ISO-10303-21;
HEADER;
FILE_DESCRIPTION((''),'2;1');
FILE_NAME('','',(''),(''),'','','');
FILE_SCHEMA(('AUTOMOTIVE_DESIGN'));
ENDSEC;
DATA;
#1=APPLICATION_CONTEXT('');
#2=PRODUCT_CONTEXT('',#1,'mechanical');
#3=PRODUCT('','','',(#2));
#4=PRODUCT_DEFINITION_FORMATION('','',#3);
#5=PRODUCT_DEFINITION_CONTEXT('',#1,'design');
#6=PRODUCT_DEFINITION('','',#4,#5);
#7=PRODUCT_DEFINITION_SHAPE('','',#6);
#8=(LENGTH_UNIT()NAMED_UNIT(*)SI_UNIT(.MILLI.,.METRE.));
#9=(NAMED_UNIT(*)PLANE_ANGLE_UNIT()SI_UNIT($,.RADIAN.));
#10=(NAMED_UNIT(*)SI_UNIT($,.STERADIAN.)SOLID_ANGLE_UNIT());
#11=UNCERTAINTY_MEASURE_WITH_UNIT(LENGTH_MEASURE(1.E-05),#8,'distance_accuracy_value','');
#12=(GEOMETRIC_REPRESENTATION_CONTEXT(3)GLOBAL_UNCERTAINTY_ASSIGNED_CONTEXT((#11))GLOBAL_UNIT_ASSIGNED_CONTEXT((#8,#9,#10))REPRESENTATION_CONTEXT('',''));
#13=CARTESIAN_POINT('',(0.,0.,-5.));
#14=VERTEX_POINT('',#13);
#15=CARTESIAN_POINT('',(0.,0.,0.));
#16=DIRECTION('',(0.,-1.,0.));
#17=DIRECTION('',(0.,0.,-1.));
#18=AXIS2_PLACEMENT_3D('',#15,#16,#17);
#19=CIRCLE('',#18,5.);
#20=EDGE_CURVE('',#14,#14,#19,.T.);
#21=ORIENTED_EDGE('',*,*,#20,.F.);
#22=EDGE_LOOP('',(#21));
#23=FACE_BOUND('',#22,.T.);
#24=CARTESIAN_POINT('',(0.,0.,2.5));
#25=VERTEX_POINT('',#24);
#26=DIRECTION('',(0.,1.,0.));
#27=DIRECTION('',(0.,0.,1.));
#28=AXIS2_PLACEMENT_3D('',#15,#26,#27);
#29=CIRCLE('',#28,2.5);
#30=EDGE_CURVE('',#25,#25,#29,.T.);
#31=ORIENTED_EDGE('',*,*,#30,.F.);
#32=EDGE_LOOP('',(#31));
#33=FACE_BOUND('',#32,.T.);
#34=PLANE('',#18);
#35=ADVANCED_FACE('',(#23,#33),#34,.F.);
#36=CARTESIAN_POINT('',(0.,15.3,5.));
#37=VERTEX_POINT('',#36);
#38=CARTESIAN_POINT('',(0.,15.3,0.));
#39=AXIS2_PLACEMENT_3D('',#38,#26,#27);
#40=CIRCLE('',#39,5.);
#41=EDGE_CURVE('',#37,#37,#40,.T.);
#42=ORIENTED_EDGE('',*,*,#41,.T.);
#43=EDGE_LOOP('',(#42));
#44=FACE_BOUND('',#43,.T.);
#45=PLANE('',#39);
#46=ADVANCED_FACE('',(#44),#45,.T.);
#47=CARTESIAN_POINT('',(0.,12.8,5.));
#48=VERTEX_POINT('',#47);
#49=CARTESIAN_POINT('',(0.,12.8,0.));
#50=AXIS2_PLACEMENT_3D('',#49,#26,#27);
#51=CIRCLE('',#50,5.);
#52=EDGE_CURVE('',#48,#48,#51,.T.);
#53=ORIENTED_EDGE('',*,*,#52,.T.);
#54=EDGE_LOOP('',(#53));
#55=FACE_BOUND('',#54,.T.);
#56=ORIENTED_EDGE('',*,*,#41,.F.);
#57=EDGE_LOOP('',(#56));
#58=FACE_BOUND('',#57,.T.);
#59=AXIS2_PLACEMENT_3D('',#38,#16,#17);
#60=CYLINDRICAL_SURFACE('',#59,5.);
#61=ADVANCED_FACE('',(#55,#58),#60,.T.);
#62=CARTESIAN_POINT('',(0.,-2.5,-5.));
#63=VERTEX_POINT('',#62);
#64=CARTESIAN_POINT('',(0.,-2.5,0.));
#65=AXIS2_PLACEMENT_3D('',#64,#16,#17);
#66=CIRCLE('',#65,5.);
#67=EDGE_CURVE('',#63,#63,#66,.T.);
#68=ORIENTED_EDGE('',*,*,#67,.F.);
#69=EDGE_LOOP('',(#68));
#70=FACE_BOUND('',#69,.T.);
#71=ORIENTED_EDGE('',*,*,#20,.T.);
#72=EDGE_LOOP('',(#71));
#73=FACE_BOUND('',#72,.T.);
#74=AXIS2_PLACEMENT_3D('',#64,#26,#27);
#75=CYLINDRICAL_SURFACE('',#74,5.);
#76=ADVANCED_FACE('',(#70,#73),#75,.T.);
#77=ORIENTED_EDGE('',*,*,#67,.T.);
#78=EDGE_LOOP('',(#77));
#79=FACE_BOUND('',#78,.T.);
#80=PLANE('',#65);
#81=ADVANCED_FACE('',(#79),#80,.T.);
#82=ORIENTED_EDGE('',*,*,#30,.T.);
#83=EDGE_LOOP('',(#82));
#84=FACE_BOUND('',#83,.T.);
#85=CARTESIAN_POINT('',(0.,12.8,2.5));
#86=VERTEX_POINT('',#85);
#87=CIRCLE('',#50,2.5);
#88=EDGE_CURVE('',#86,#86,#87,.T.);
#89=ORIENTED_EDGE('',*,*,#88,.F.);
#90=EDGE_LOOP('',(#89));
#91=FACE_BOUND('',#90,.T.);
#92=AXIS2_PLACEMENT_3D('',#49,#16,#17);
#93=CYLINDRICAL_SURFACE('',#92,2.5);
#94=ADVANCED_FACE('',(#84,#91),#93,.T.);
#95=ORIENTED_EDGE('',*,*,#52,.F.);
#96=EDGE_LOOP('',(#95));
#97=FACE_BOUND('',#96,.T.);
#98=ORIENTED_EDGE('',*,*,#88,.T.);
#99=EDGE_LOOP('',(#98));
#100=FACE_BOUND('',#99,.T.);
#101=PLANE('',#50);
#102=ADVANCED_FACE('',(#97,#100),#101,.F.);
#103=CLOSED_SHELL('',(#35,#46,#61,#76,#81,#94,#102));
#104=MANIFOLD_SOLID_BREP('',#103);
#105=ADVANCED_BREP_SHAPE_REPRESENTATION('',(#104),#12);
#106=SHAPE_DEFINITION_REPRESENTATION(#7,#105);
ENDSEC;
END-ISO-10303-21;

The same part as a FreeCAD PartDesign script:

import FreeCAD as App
import Part
import Sketcher
from FreeCAD import Vector
Q = App.Units.Quantity

doc = App.newDocument("Part")
body = doc.addObject("PartDesign::Body", "Body")

# Sketch on XZ plane
sketch1 = doc.addObject("Sketcher::SketchObject", "Sketch")
body.addObject(sketch1)
sketch1.AttachmentSupport = (doc.XZ_Plane, [""])
sketch1.MapMode = "FlatFace"
sketch1.addGeometry(Part.Circle(Vector(0, 0, 0), Vector(0, 0, 1), 2.5), False)
sketch1.addConstraint([
    Sketcher.Constraint("Coincident", 0, 3, -1, 1),
    Sketcher.Constraint("Diameter", 0, Q("5 mm")),
])
pad1 = doc.addObject("PartDesign::Pad", "Pad")
body.addObject(pad1)
pad1.Profile = sketch1
pad1.Length = 12.8
pad1.Reversed = True

# Sketch on XZ plane
sketch2 = doc.addObject("Sketcher::SketchObject", "Sketch001")
body.addObject(sketch2)
sketch2.AttachmentSupport = (doc.XZ_Plane, [""])
sketch2.MapMode = "FlatFace"
sketch2.AttachmentOffset = App.Placement(Vector(0, 0, -12.8), App.Rotation())
sketch2.addGeometry(Part.Circle(Vector(0, 0, 0), Vector(0, 0, 1), 5), False)
sketch2.addConstraint([
    Sketcher.Constraint("Coincident", 0, 3, -1, 1),
    Sketcher.Constraint("Diameter", 0, Q("10 mm")),
])
pad2 = doc.addObject("PartDesign::Pad", "Pad001")
body.addObject(pad2)
pad2.Profile = sketch2
pad2.Length = 2.5
pad2.Reversed = True

# Sketch on XZ plane
sketch3 = doc.addObject("Sketcher::SketchObject", "Sketch002")
body.addObject(sketch3)
sketch3.AttachmentSupport = (doc.XZ_Plane, [""])
sketch3.MapMode = "FlatFace"
sketch3.addGeometry(Part.Circle(Vector(0, 0, 0), Vector(0, 0, 1), 5), False)
sketch3.addConstraint([
    Sketcher.Constraint("Coincident", 0, 3, -1, 1),
    Sketcher.Constraint("Diameter", 0, Q("10 mm")),
])
pad3 = doc.addObject("PartDesign::Pad", "Pad002")
body.addObject(pad3)
pad3.Profile = sketch3
pad3.Length = 2.5

doc.recompute()
